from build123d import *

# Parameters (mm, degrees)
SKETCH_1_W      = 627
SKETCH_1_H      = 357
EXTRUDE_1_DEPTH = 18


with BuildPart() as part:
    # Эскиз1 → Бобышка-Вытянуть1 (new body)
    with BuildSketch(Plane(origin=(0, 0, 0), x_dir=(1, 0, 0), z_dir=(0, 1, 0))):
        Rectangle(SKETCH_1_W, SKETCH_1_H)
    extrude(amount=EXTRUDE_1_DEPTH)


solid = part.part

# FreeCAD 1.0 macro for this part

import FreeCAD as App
import Part
import Sketcher
from FreeCAD import Vector
Q = App.Units.Quantity

doc = App.newDocument("Part")
body = doc.addObject("PartDesign::Body", "Body")

# Sketch on XZ plane
sketch1 = body.newObject("Sketcher::SketchObject", "Sketch")
sketch1.AttachmentSupport = (doc.getObject("XZ_Plane"), [""])
sketch1.MapMode = "FlatFace"
sketch1.addGeometry([
    Part.LineSegment(Vector(-314, -178, 0), Vector(-314, 178, 0)),
    Part.LineSegment(Vector(-314, 178, 0), Vector(314, 178, 0)),
    Part.LineSegment(Vector(314, 178, 0), Vector(314, -178, 0)),
    Part.LineSegment(Vector(314, -178, 0), Vector(-314, -178, 0)),
], False)
sketch1.addConstraint([
    Sketcher.Constraint("Coincident", 0, 2, 1, 1),
    Sketcher.Constraint("Coincident", 1, 2, 2, 1),
    Sketcher.Constraint("Coincident", 2, 2, 3, 1),
    Sketcher.Constraint("Coincident", 3, 2, 0, 1),
    Sketcher.Constraint("Vertical", 0),
    Sketcher.Constraint("Horizontal", 1),
    Sketcher.Constraint("Vertical", 2),
    Sketcher.Constraint("Horizontal", 3),
    Sketcher.Constraint("Symmetric", 0, 2, 2, 2, -1, 1),
    Sketcher.Constraint("DistanceX", 1, 1, 1, 2, Q("627 mm")),
    Sketcher.Constraint("DistanceY", 0, 1, 0, 2, Q("357 mm")),
])
pad1 = body.newObject("PartDesign::Pad", "Pad")
pad1.Profile = sketch1
pad1.Length = 18
pad1.Reversed = True

doc.recompute()
